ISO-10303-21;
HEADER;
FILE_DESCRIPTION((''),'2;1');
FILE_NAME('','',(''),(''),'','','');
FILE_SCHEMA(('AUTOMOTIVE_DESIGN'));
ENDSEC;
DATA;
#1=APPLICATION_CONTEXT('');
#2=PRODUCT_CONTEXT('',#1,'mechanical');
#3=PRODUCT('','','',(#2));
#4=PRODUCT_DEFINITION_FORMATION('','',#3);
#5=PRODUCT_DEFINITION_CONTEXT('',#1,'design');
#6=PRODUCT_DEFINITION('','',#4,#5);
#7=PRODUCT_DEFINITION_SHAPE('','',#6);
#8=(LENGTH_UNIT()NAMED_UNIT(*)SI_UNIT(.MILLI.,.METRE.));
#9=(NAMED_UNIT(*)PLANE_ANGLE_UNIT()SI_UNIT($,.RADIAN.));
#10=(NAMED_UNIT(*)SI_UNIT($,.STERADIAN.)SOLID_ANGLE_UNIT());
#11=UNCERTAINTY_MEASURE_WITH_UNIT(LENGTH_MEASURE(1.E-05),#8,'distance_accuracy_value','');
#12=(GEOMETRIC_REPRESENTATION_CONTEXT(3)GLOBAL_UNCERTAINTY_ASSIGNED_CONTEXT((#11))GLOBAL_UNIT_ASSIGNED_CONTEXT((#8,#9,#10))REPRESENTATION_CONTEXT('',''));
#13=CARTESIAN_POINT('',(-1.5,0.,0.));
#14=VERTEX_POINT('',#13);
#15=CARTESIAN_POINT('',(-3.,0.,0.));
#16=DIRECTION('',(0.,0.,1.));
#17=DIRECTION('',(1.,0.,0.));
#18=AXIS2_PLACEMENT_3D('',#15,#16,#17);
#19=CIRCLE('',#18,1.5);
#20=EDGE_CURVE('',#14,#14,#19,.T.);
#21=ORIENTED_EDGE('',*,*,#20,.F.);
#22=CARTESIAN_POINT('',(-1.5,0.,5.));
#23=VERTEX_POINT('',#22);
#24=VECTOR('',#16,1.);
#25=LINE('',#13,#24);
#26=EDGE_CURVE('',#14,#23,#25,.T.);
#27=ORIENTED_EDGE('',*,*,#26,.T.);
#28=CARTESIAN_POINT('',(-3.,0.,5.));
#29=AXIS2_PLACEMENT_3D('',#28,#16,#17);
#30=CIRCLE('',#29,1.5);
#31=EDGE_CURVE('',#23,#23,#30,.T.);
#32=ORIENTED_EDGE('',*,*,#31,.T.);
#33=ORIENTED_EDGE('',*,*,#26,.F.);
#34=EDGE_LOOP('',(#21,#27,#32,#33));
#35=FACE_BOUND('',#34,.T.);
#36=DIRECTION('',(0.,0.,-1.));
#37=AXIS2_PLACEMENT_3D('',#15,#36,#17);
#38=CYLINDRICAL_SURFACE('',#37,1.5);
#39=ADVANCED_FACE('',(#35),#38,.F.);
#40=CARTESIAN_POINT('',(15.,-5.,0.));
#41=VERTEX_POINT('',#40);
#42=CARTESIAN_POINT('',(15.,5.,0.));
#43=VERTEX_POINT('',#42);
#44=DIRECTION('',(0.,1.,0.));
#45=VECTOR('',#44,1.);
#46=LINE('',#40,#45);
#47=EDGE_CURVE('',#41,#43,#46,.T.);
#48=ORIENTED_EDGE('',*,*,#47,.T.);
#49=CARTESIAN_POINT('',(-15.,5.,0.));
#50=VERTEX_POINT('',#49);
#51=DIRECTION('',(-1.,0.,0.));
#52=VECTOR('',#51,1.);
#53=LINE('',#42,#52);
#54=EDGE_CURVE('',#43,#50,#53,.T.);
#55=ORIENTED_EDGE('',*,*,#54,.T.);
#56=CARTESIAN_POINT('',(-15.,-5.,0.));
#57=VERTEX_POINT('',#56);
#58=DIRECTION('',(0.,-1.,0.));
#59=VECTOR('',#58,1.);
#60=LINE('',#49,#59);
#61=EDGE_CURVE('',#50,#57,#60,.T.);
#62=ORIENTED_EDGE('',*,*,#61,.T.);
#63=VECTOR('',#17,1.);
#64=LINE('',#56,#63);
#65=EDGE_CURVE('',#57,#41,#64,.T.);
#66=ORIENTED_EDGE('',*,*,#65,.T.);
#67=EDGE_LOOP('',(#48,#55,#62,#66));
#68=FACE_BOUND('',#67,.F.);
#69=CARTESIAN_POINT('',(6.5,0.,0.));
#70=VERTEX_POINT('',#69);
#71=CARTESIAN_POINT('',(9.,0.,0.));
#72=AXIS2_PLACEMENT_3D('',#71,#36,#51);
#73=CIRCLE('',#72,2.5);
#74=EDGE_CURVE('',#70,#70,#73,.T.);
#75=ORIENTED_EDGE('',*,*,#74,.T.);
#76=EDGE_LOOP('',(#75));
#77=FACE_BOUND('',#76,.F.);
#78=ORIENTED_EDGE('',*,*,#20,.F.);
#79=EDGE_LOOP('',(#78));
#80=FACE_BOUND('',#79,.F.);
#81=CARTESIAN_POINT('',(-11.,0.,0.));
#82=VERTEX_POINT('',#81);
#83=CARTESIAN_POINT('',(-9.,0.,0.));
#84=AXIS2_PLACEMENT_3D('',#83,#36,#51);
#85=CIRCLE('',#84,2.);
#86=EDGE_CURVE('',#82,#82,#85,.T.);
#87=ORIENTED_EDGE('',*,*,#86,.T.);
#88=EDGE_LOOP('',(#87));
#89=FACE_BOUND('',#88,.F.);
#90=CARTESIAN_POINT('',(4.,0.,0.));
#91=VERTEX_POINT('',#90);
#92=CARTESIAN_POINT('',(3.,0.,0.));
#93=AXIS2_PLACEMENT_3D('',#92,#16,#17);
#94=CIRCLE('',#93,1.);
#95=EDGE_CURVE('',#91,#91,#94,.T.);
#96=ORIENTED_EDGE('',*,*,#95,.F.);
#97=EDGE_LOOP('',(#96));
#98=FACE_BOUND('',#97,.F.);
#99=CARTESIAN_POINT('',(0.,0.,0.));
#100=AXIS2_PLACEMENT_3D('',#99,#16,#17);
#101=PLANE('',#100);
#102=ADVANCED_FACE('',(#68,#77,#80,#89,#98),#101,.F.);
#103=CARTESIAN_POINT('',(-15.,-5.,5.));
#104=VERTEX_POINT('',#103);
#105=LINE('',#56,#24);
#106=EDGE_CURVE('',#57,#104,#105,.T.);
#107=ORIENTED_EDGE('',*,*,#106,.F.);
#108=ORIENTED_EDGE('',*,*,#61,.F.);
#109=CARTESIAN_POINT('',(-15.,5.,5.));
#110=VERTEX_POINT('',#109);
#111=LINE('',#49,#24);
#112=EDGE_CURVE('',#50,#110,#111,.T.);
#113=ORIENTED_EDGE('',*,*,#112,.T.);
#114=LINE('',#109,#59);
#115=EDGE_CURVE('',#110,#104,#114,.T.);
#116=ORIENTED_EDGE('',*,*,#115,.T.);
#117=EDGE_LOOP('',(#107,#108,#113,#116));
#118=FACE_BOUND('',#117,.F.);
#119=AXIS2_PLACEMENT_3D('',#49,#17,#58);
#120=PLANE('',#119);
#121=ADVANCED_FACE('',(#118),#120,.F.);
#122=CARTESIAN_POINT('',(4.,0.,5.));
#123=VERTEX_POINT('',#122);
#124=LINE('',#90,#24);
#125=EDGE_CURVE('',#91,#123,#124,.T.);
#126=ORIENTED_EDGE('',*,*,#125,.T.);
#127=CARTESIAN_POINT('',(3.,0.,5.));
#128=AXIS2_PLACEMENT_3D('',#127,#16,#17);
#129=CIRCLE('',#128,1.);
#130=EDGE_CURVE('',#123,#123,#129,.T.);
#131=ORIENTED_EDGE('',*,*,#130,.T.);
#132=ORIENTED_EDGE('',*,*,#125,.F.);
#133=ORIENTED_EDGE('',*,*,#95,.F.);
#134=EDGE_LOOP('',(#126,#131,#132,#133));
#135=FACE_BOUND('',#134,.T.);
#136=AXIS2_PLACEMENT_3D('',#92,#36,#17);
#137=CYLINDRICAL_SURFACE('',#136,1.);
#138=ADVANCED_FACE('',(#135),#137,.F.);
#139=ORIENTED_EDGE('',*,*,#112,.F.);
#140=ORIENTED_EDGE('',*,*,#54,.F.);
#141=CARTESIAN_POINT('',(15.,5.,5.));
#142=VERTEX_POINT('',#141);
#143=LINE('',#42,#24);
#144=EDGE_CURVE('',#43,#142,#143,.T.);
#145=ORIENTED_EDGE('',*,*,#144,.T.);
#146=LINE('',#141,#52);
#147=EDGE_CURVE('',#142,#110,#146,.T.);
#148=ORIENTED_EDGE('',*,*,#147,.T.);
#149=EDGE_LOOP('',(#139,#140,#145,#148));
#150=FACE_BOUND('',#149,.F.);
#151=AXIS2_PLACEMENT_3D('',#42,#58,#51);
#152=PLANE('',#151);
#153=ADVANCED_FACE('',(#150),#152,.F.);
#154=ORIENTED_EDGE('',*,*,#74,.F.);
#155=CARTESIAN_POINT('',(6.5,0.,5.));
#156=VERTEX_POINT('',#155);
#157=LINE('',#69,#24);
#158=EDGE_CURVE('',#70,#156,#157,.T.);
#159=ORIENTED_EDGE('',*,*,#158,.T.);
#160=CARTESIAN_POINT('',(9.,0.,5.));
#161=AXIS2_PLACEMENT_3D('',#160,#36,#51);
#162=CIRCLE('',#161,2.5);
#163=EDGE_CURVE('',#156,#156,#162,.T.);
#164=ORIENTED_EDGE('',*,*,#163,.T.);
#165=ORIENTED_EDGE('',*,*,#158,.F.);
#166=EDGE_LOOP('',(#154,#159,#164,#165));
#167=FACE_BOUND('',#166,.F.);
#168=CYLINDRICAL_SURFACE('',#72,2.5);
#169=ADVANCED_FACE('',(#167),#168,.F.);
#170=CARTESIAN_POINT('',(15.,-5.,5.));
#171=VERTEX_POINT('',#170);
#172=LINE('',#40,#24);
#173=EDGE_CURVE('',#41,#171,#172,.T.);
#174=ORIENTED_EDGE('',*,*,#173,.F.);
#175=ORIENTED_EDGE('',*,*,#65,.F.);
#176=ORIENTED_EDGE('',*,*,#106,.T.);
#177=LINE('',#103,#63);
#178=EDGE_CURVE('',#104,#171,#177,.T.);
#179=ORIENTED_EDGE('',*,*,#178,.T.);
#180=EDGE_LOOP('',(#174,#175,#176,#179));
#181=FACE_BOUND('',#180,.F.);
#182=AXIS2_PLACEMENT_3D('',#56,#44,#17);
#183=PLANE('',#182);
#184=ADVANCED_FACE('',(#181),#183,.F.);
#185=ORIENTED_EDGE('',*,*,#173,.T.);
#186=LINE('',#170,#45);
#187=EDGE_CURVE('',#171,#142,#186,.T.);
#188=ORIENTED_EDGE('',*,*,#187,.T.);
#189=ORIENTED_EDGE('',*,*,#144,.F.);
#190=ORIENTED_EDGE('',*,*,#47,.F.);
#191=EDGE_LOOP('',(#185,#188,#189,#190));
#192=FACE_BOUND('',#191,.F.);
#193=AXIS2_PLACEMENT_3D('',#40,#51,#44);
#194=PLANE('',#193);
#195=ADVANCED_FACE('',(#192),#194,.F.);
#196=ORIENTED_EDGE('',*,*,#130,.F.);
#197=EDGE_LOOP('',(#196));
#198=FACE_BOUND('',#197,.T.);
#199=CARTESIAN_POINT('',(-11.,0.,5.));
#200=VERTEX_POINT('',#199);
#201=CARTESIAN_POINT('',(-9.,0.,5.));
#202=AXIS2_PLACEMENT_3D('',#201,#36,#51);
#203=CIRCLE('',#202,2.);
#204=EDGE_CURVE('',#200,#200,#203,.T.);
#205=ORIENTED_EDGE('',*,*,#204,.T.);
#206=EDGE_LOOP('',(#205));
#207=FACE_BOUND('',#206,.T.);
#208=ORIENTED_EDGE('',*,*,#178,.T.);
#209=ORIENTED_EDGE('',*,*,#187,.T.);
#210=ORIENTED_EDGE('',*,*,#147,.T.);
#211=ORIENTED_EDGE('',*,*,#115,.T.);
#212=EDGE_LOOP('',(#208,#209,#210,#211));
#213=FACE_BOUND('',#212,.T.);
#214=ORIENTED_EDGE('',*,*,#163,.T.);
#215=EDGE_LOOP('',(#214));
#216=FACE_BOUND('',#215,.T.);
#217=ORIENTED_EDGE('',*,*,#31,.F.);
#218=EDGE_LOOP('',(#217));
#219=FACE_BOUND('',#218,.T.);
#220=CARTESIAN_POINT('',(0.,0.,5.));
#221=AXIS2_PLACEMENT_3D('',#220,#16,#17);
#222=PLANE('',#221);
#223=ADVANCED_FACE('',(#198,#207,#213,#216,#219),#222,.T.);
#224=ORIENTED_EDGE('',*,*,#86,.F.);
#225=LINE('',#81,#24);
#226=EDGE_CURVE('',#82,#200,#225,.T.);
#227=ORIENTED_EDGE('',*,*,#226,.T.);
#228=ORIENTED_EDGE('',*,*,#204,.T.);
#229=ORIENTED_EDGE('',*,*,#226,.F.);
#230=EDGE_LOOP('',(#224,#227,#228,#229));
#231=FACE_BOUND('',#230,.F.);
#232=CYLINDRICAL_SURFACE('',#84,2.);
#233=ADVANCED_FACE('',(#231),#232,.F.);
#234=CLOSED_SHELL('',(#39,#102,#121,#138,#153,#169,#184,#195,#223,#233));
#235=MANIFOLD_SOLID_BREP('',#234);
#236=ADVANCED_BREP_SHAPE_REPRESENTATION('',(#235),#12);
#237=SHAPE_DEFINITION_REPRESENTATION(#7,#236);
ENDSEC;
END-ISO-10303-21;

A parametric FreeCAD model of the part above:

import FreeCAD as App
import Part
import Sketcher
from FreeCAD import Vector

doc = App.newDocument("Part")
body = doc.addObject("PartDesign::Body", "Body")

sketch1 = body.newObject("Sketcher::SketchObject", "Sketch")
sketch1.AttachmentSupport = (doc.getObject("XY_Plane"), [""])
sketch1.MapMode = "FlatFace"
sketch1.addGeometry(Part.LineSegment(Vector(-15, -5, 0), Vector(15, -5, 0)), False)
sketch1.addGeometry(Part.LineSegment(Vector(15, -5, 0), Vector(15, 5, 0)), False)
sketch1.addGeometry(Part.LineSegment(Vector(15, 5, 0), Vector(-15, 5, 0)), False)
sketch1.addGeometry(Part.LineSegment(Vector(-15, 5, 0), Vector(-15, -5, 0)), False)
sketch1.addGeometry(Part.Circle(Vector(-9, 0, 0), Vector(0, 0, 1), 2), False)
sketch1.addGeometry(Part.Circle(Vector(-3, 0, 0), Vector(0, 0, 1), 1.5), False)
sketch1.addGeometry(Part.Circle(Vector(3, 0, 0), Vector(0, 0, 1), 1), False)
sketch1.addGeometry(Part.Circle(Vector(9, 0, 0), Vector(0, 0, 1), 2.5), False)
sketch1.addConstraint(Sketcher.Constraint("Coincident", 0, 2, 1, 1))
sketch1.addConstraint(Sketcher.Constraint("Coincident", 1, 2, 2, 1))
sketch1.addConstraint(Sketcher.Constraint("Coincident", 2, 2, 3, 1))
sketch1.addConstraint(Sketcher.Constraint("Coincident", 3, 2, 0, 1))
sketch1.addConstraint(Sketcher.Constraint("Horizontal", 0))
sketch1.addConstraint(Sketcher.Constraint("Vertical", 1))
sketch1.addConstraint(Sketcher.Constraint("Horizontal", 2))
sketch1.addConstraint(Sketcher.Constraint("Vertical", 3))
sketch1.addConstraint(Sketcher.Constraint("Symmetric", 5, 3, 6, 3, -1, 1))
sketch1.addConstraint(Sketcher.Constraint("Symmetric", 4, 3, 7, 3, -1, 1))
sketch1.addConstraint(Sketcher.Constraint("Symmetric", 0, 2, 2, 2, -1, 1))
sketch1.addConstraint(Sketcher.Constraint("PointOnObject", 4, 3, -1))
sketch1.addConstraint(Sketcher.Constraint("PointOnObject", 5, 3, -1))
sketch1.addConstraint(Sketcher.Constraint("Diameter", 4, 4.0))
sketch1.addConstraint(Sketcher.Constraint("Diameter", 5, 3.0))
sketch1.addConstraint(Sketcher.Constraint("Diameter", 6, 2.0))
sketch1.addConstraint(Sketcher.Constraint("Diameter", 7, 5.0))
sketch1.addConstraint(Sketcher.Constraint("DistanceX", 0, 1, 0, 2, 30.0))
sketch1.addConstraint(Sketcher.Constraint("DistanceY", 1, 1, 1, 2, 10.0))
sketch1.addConstraint(Sketcher.Constraint("DistanceX", 4, 3, -1, 1, 9.0))
sketch1.addConstraint(Sketcher.Constraint("DistanceX", 5, 3, -1, 1, 3.0))
pad1 = body.newObject("PartDesign::Pad", "Pad")
pad1.Profile = sketch1
pad1.Length = 5

doc.recompute()
